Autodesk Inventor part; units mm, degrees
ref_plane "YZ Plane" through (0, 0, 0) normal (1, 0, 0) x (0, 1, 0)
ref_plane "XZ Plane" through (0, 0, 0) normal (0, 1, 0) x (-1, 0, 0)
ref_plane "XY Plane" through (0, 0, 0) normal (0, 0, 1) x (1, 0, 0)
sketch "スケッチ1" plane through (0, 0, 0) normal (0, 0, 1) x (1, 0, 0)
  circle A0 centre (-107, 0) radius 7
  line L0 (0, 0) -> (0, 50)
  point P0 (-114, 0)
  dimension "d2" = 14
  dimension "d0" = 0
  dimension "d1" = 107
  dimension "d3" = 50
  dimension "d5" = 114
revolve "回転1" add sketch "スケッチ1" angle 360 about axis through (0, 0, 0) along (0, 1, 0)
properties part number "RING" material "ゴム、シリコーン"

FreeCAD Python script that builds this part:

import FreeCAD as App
import Part
import Sketcher

V = App.Vector

doc = App.newDocument("Part")
body = doc.addObject("PartDesign::Body", "Body")

# Sketch on XY plane
sketch1 = body.newObject("Sketcher::SketchObject", "Sketch")
sketch1.AttachmentSupport = (doc.getObject("XY_Plane"), [""])
sketch1.MapMode = "FlatFace"
sketch1.addGeometry(Part.Circle(V(-107, 0, 0), V(0, 0, 1), 7), False)
sketch1.addConstraint(Sketcher.Constraint("PointOnObject", 0, 3, -1))
sketch1.addConstraint(Sketcher.Constraint("Diameter", 0, 14.0))
sketch1.addConstraint(Sketcher.Constraint("DistanceX", 0, 3, -1, 1, 107.0))
revolution = body.newObject("PartDesign::Revolution", "Revolution")
revolution.Profile = sketch1
revolution.ReferenceAxis = (sketch1, ["V_Axis"])
revolution.Angle = 360

doc.recompute()
